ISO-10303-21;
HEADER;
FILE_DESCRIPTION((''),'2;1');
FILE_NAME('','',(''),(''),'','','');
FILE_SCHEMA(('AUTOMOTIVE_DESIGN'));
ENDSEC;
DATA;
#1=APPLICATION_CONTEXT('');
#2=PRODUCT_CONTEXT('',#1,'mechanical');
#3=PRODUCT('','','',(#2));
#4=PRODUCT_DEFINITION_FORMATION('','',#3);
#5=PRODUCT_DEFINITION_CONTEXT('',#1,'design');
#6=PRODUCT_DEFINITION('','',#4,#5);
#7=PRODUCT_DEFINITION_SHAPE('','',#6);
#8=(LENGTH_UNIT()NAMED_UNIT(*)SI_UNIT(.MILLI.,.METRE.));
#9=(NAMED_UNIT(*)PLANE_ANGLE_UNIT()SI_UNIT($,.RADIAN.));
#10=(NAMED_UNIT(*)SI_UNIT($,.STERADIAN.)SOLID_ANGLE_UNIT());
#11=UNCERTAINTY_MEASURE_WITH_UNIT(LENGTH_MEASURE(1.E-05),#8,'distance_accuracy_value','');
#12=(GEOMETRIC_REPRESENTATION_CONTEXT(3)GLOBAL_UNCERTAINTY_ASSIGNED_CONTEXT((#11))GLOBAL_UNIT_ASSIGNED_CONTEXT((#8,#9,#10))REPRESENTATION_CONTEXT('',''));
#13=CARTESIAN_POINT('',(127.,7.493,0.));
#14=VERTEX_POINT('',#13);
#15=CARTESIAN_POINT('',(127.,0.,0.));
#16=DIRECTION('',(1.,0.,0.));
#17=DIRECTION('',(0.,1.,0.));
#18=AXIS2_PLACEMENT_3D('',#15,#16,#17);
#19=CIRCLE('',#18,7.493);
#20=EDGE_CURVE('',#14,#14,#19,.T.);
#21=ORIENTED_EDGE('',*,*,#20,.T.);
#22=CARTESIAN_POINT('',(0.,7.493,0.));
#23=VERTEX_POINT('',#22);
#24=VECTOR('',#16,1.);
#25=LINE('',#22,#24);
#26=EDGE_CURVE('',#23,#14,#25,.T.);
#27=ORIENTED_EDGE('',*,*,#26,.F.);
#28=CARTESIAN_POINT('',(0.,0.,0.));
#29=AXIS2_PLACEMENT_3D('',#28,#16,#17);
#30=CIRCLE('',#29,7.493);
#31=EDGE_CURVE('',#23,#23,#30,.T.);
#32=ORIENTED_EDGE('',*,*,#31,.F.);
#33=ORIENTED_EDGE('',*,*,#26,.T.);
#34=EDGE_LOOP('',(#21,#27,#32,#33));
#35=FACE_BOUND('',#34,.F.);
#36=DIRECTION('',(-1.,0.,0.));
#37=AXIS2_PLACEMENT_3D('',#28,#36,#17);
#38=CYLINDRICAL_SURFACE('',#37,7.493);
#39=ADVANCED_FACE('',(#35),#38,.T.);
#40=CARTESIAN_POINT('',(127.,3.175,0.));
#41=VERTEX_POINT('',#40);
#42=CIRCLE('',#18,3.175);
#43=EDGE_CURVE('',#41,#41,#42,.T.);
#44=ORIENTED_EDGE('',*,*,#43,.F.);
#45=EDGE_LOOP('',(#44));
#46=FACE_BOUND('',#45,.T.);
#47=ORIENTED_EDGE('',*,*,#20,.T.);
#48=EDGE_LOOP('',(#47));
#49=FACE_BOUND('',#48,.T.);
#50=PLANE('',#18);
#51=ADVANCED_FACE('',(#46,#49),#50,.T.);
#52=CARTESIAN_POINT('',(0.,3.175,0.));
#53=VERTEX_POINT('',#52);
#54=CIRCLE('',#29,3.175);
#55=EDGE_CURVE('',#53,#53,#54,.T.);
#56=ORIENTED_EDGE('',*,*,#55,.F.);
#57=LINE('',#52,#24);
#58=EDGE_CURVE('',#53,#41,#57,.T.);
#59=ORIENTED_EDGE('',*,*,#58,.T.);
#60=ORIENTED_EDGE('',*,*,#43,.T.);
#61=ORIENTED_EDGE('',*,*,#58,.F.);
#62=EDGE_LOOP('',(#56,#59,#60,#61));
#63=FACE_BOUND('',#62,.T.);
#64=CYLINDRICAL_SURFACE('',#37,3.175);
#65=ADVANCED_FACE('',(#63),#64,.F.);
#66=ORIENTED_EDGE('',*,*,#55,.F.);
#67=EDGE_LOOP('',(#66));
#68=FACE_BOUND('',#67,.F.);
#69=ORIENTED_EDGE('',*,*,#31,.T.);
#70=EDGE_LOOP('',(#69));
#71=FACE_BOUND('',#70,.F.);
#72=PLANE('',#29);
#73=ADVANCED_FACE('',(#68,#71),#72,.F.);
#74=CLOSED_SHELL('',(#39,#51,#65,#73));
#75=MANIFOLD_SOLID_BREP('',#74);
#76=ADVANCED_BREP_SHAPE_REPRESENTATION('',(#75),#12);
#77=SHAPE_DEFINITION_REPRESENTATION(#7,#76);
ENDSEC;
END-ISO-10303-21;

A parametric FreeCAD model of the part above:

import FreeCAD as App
import Part
import Sketcher
from FreeCAD import Vector
Q = App.Units.Quantity

doc = App.newDocument("Part")
body = doc.addObject("PartDesign::Body", "Body")

# Sketch on YZ plane
sketch1 = doc.addObject("Sketcher::SketchObject", "Sketch")
body.addObject(sketch1)
sketch1.AttachmentSupport = (doc.YZ_Plane, [""])
sketch1.MapMode = "FlatFace"
sketch1.addGeometry(Part.Circle(Vector(0, 0, 0), Vector(0, 0, 1), 7.5), False)
sketch1.addGeometry(Part.Circle(Vector(0, 0, 0), Vector(0, 0, 1), 3.2), False)
sketch1.addConstraint(Sketcher.Constraint("Coincident", 0, 3, -1, 1))
sketch1.addConstraint(Sketcher.Constraint("Coincident", 1, 3, -1, 1))
sketch1.addConstraint(Sketcher.Constraint("Diameter", 0, Q("0.59 in")))
sketch1.addConstraint(Sketcher.Constraint("Diameter", 1, Q("0.25 in")))
pad1 = doc.addObject("PartDesign::Pad", "Pad")
body.addObject(pad1)
pad1.Profile = sketch1
pad1.Length = Q("5 in")

doc.recompute()
